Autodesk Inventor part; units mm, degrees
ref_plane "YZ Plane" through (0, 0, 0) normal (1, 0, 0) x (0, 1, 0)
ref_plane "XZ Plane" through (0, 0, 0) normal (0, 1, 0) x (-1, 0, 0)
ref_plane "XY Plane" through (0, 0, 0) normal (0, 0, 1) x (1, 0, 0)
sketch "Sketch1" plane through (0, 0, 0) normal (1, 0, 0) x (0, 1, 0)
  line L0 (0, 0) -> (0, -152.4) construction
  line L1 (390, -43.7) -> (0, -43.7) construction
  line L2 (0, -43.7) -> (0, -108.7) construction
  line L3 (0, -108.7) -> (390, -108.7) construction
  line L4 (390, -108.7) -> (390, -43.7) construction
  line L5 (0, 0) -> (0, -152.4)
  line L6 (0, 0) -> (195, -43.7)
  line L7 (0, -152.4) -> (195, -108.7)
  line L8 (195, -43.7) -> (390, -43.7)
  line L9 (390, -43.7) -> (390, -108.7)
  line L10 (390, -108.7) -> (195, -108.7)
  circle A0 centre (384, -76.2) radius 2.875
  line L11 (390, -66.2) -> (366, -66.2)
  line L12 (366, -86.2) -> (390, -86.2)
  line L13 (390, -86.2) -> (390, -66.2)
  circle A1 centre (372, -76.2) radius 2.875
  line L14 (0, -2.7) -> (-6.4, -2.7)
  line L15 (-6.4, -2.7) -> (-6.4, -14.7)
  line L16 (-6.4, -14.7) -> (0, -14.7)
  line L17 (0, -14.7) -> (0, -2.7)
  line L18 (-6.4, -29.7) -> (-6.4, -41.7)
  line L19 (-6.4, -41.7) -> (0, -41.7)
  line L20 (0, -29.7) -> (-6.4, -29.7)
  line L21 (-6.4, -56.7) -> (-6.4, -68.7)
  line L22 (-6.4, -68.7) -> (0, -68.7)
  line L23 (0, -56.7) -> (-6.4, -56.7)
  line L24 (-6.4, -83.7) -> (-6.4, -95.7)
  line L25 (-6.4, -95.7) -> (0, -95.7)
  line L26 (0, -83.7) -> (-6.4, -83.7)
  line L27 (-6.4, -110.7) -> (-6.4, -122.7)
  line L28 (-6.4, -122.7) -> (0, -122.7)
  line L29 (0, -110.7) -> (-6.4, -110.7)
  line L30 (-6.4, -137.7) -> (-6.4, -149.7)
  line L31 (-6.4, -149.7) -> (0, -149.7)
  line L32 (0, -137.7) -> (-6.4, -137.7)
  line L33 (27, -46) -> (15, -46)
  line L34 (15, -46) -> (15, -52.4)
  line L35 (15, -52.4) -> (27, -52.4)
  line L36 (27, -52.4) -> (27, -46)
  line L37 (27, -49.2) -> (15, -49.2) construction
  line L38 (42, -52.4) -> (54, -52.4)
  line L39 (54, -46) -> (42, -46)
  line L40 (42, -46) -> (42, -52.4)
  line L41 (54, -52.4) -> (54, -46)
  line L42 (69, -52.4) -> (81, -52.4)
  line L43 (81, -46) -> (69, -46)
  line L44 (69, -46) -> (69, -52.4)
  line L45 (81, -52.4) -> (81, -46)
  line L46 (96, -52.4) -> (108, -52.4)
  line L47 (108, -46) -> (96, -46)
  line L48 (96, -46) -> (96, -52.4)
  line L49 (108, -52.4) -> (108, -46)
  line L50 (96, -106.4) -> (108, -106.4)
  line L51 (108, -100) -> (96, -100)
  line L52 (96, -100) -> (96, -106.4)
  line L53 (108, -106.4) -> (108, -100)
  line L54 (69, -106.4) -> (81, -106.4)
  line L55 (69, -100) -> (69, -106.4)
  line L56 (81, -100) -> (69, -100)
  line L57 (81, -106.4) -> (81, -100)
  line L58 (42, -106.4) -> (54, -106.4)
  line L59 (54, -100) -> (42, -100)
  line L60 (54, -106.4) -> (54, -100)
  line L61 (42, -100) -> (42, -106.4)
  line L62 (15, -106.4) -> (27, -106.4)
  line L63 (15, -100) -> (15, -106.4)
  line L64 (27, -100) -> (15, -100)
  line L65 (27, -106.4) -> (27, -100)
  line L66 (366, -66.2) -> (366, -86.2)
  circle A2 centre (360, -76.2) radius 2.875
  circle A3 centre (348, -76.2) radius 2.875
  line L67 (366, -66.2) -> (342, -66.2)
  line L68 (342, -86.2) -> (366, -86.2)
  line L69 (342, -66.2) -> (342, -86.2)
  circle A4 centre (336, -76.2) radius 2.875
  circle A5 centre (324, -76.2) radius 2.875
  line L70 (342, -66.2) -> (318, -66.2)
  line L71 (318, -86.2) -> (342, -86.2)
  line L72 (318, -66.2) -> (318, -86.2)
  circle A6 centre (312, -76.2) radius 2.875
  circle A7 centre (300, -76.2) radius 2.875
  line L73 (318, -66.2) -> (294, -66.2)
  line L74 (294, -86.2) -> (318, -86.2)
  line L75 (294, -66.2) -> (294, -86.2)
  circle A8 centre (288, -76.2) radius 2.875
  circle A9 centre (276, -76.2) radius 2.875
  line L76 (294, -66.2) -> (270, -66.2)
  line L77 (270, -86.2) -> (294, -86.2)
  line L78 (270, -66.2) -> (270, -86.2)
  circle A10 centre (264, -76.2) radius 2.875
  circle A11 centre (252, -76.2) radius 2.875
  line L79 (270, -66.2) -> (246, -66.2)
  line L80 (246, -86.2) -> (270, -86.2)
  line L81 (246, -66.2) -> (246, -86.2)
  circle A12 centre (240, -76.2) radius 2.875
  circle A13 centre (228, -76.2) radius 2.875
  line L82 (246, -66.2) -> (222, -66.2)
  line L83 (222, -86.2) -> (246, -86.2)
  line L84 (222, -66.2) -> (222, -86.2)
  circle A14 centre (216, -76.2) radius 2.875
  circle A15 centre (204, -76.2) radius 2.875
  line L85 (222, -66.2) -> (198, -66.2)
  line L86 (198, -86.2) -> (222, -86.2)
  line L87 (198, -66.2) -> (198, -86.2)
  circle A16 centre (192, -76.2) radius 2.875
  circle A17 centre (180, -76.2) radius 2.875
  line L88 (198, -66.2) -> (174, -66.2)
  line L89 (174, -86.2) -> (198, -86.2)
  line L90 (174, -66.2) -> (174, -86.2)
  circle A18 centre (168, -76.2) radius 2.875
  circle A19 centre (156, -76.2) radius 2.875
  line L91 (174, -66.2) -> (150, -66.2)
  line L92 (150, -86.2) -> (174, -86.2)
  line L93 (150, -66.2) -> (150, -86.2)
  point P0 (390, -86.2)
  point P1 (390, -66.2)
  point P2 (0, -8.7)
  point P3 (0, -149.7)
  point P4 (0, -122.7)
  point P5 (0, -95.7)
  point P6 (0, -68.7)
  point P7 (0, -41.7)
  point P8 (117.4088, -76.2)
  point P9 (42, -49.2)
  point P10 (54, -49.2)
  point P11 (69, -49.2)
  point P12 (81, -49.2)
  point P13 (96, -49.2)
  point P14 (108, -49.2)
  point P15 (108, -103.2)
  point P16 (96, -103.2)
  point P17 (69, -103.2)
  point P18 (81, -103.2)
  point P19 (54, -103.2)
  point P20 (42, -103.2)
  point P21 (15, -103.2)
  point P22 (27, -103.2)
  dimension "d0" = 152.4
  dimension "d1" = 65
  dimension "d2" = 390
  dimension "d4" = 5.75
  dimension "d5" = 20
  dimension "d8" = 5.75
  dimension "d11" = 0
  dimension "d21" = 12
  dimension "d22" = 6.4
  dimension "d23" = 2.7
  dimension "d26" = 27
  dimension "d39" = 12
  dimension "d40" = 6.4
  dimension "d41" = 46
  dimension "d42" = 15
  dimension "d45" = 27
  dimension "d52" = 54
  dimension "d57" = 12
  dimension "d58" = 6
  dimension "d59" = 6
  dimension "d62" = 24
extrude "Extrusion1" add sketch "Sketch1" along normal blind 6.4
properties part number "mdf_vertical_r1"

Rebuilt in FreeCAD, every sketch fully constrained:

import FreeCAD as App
import Part
import Sketcher

doc = App.newDocument("Part")
body = doc.addObject("PartDesign::Body", "Body")

# Sketch on YZ plane
sketch1 = body.newObject("Sketcher::SketchObject", "Sketch")
sketch1.AttachmentSupport = (doc.getObject("YZ_Plane"), [""])
sketch1.MapMode = "FlatFace"
sketch1.addGeometry([
    Part.LineSegment(App.Vector(195, -43.7, 0), App.Vector(0, 0, 0)),  # 0
    Part.LineSegment(App.Vector(0, 0, 0), App.Vector(0, -2.7, 0)),  # 1
    Part.LineSegment(App.Vector(0, -2.7, 0), App.Vector(-6.4, -2.7, 0)),  # 2
    Part.LineSegment(App.Vector(-6.4, -2.7, 0), App.Vector(-6.4, -14.7, 0)),  # 3
    Part.LineSegment(App.Vector(-6.4, -14.7, 0), App.Vector(0, -14.7, 0)),  # 4
    Part.LineSegment(App.Vector(0, -14.7, 0), App.Vector(0, -29.7, 0)),  # 5
    Part.LineSegment(App.Vector(0, -29.7, 0), App.Vector(-6.4, -29.7, 0)),  # 6
    Part.LineSegment(App.Vector(-6.4, -29.7, 0), App.Vector(-6.4, -41.7, 0)),  # 7
    Part.LineSegment(App.Vector(-6.4, -41.7, 0), App.Vector(0, -41.7, 0)),  # 8
    Part.LineSegment(App.Vector(0, -41.7, 0), App.Vector(0, -56.7, 0)),  # 9
    Part.LineSegment(App.Vector(0, -56.7, 0), App.Vector(-6.4, -56.7, 0)),  # 10
    Part.LineSegment(App.Vector(-6.4, -56.7, 0), App.Vector(-6.4, -68.7, 0)),  # 11
    Part.LineSegment(App.Vector(-6.4, -68.7, 0), App.Vector(0, -68.7, 0)),  # 12
    Part.LineSegment(App.Vector(0, -68.7, 0), App.Vector(0, -83.7, 0)),  # 13
    Part.LineSegment(App.Vector(0, -83.7, 0), App.Vector(-6.4, -83.7, 0)),  # 14
    Part.LineSegment(App.Vector(-6.4, -83.7, 0), App.Vector(-6.4, -95.7, 0)),  # 15
    Part.LineSegment(App.Vector(-6.4, -95.7, 0), App.Vector(0, -95.7, 0)),  # 16
    Part.LineSegment(App.Vector(0, -95.7, 0), App.Vector(0, -110.7, 0)),  # 17
    Part.LineSegment(App.Vector(0, -110.7, 0), App.Vector(-6.4, -110.7, 0)),  # 18
    Part.LineSegment(App.Vector(-6.4, -110.7, 0), App.Vector(-6.4, -122.7, 0)),  # 19
    Part.LineSegment(App.Vector(-6.4, -122.7, 0), App.Vector(0, -122.7, 0)),  # 20
    Part.LineSegment(App.Vector(0, -122.7, 0), App.Vector(0, -137.7, 0)),  # 21
    Part.LineSegment(App.Vector(0, -137.7, 0), App.Vector(-6.4, -137.7, 0)),  # 22
    Part.LineSegment(App.Vector(-6.4, -137.7, 0), App.Vector(-6.4, -149.7, 0)),  # 23
    Part.LineSegment(App.Vector(-6.4, -149.7, 0), App.Vector(0, -149.7, 0)),  # 24
    Part.LineSegment(App.Vector(0, -149.7, 0), App.Vector(0, -152.4, 0)),  # 25
    Part.LineSegment(App.Vector(0, -152.4, 0), App.Vector(195, -108.7, 0)),  # 26
    Part.LineSegment(App.Vector(195, -108.7, 0), App.Vector(390, -108.7, 0)),  # 27
    Part.LineSegment(App.Vector(390, -108.7, 0), App.Vector(390, -43.7, 0)),  # 28
    Part.LineSegment(App.Vector(390, -43.7, 0), App.Vector(195, -43.7, 0)),  # 29
    Part.LineSegment(App.Vector(27, -106.4, 0), App.Vector(15, -106.4, 0)),  # 30
    Part.LineSegment(App.Vector(15, -106.4, 0), App.Vector(15, -100, 0)),  # 31
    Part.LineSegment(App.Vector(15, -100, 0), App.Vector(27, -100, 0)),  # 32
    Part.LineSegment(App.Vector(27, -100, 0), App.Vector(27, -106.4, 0)),  # 33
    Part.LineSegment(App.Vector(54, -106.4, 0), App.Vector(42, -106.4, 0)),  # 34
    Part.LineSegment(App.Vector(42, -106.4, 0), App.Vector(42, -100, 0)),  # 35
    Part.LineSegment(App.Vector(42, -100, 0), App.Vector(54, -100, 0)),  # 36
    Part.LineSegment(App.Vector(54, -100, 0), App.Vector(54, -106.4, 0)),  # 37
    Part.LineSegment(App.Vector(81, -106.4, 0), App.Vector(69, -106.4, 0)),  # 38
    Part.LineSegment(App.Vector(69, -106.4, 0), App.Vector(69, -100, 0)),  # 39
    Part.LineSegment(App.Vector(69, -100, 0), App.Vector(81, -100, 0)),  # 40
    Part.LineSegment(App.Vector(81, -100, 0), App.Vector(81, -106.4, 0)),  # 41
    Part.LineSegment(App.Vector(108, -106.4, 0), App.Vector(96, -106.4, 0)),  # 42
    Part.LineSegment(App.Vector(96, -106.4, 0), App.Vector(96, -100, 0)),  # 43
    Part.LineSegment(App.Vector(96, -100, 0), App.Vector(108, -100, 0)),  # 44
    Part.LineSegment(App.Vector(108, -100, 0), App.Vector(108, -106.4, 0)),  # 45
    Part.LineSegment(App.Vector(15, -46, 0), App.Vector(27, -46, 0)),  # 46
    Part.LineSegment(App.Vector(27, -46, 0), App.Vector(27, -52.4, 0)),  # 47
    Part.LineSegment(App.Vector(27, -52.4, 0), App.Vector(15, -52.4, 0)),  # 48
    Part.LineSegment(App.Vector(15, -52.4, 0), App.Vector(15, -46, 0)),  # 49
    Part.LineSegment(App.Vector(54, -52.4, 0), App.Vector(42, -52.4, 0)),  # 50
    Part.LineSegment(App.Vector(42, -52.4, 0), App.Vector(42, -46, 0)),  # 51
    Part.LineSegment(App.Vector(42, -46, 0), App.Vector(54, -46, 0)),  # 52
    Part.LineSegment(App.Vector(54, -46, 0), App.Vector(54, -52.4, 0)),  # 53
    Part.LineSegment(App.Vector(81, -52.4, 0), App.Vector(69, -52.4, 0)),  # 54
    Part.LineSegment(App.Vector(69, -52.4, 0), App.Vector(69, -46, 0)),  # 55
    Part.LineSegment(App.Vector(69, -46, 0), App.Vector(81, -46, 0)),  # 56
    Part.LineSegment(App.Vector(81, -46, 0), App.Vector(81, -52.4, 0)),  # 57
    Part.LineSegment(App.Vector(108, -52.4, 0), App.Vector(96, -52.4, 0)),  # 58
    Part.LineSegment(App.Vector(96, -52.4, 0), App.Vector(96, -46, 0)),  # 59
    Part.LineSegment(App.Vector(96, -46, 0), App.Vector(108, -46, 0)),  # 60
    Part.LineSegment(App.Vector(108, -46, 0), App.Vector(108, -52.4, 0)),  # 61
    Part.Circle(App.Vector(372, -76.2, 0), App.Vector(0, 0, 1), 2.9),  # 62
    Part.Circle(App.Vector(384, -76.2, 0), App.Vector(0, 0, 1), 2.9),  # 63
    Part.Circle(App.Vector(360, -76.2, 0), App.Vector(0, 0, 1), 2.9),  # 64
    Part.Circle(App.Vector(348, -76.2, 0), App.Vector(0, 0, 1), 2.9),  # 65
    Part.Circle(App.Vector(336, -76.2, 0), App.Vector(0, 0, 1), 2.9),  # 66
    Part.Circle(App.Vector(324, -76.2, 0), App.Vector(0, 0, 1), 2.9),  # 67
    Part.Circle(App.Vector(312, -76.2, 0), App.Vector(0, 0, 1), 2.9),  # 68
    Part.Circle(App.Vector(300, -76.2, 0), App.Vector(0, 0, 1), 2.9),  # 69
    Part.Circle(App.Vector(288, -76.2, 0), App.Vector(0, 0, 1), 2.9),  # 70
    Part.Circle(App.Vector(276, -76.2, 0), App.Vector(0, 0, 1), 2.9),  # 71
    Part.Circle(App.Vector(264, -76.2, 0), App.Vector(0, 0, 1), 2.9),  # 72
    Part.Circle(App.Vector(252, -76.2, 0), App.Vector(0, 0, 1), 2.9),  # 73
    Part.Circle(App.Vector(240, -76.2, 0), App.Vector(0, 0, 1), 2.9),  # 74
    Part.Circle(App.Vector(228, -76.2, 0), App.Vector(0, 0, 1), 2.9),  # 75
    Part.Circle(App.Vector(216, -76.2, 0), App.Vector(0, 0, 1), 2.9),  # 76
    Part.Circle(App.Vector(204, -76.2, 0), App.Vector(0, 0, 1), 2.9),  # 77
    Part.Circle(App.Vector(192, -76.2, 0), App.Vector(0, 0, 1), 2.9),  # 78
    Part.Circle(App.Vector(180, -76.2, 0), App.Vector(0, 0, 1), 2.9),  # 79
    Part.Circle(App.Vector(156, -76.2, 0), App.Vector(0, 0, 1), 2.9),  # 80
    Part.Circle(App.Vector(168, -76.2, 0), App.Vector(0, 0, 1), 2.9),  # 81
], False)
sketch1.addConstraint([
    Sketcher.Constraint("Coincident", 0, 2, 1, 1),
    Sketcher.Constraint("Coincident", 1, 2, 2, 1),
    Sketcher.Constraint("Coincident", 2, 2, 3, 1),
    Sketcher.Constraint("Coincident", 3, 2, 4, 1),
    Sketcher.Constraint("Coincident", 4, 2, 5, 1),
    Sketcher.Constraint("Coincident", 5, 2, 6, 1),
    Sketcher.Constraint("Coincident", 6, 2, 7, 1),
    Sketcher.Constraint("Coincident", 7, 2, 8, 1),
    Sketcher.Constraint("Coincident", 8, 2, 9, 1),
    Sketcher.Constraint("Coincident", 9, 2, 10, 1),
    Sketcher.Constraint("Coincident", 10, 2, 11, 1),
    Sketcher.Constraint("Coincident", 11, 2, 12, 1),
    Sketcher.Constraint("Coincident", 12, 2, 13, 1),
    Sketcher.Constraint("Coincident", 13, 2, 14, 1),
    Sketcher.Constraint("Coincident", 14, 2, 15, 1),
    Sketcher.Constraint("Coincident", 15, 2, 16, 1),
    Sketcher.Constraint("Coincident", 16, 2, 17, 1),
    Sketcher.Constraint("Coincident", 17, 2, 18, 1),
    Sketcher.Constraint("Coincident", 18, 2, 19, 1),
    Sketcher.Constraint("Coincident", 19, 2, 20, 1),
    Sketcher.Constraint("Coincident", 20, 2, 21, 1),
    Sketcher.Constraint("Coincident", 21, 2, 22, 1),
    Sketcher.Constraint("Coincident", 22, 2, 23, 1),
    Sketcher.Constraint("Coincident", 23, 2, 24, 1),
    Sketcher.Constraint("Coincident", 24, 2, 25, 1),
    Sketcher.Constraint("Coincident", 25, 2, 26, 1),
    Sketcher.Constraint("Coincident", 26, 2, 27, 1),
    Sketcher.Constraint("Coincident", 27, 2, 28, 1),
    Sketcher.Constraint("Coincident", 28, 2, 29, 1),
    Sketcher.Constraint("Coincident", 29, 2, 0, 1),
    Sketcher.Constraint("Coincident", 30, 2, 31, 1),
    Sketcher.Constraint("Coincident", 31, 2, 32, 1),
    Sketcher.Constraint("Coincident", 32, 2, 33, 1),
    Sketcher.Constraint("Coincident", 33, 2, 30, 1),
    Sketcher.Constraint("Coincident", 34, 2, 35, 1),
    Sketcher.Constraint("Coincident", 35, 2, 36, 1),
    Sketcher.Constraint("Coincident", 36, 2, 37, 1),
    Sketcher.Constraint("Coincident", 37, 2, 34, 1),
    Sketcher.Constraint("Coincident", 38, 2, 39, 1),
    Sketcher.Constraint("Coincident", 39, 2, 40, 1),
    Sketcher.Constraint("Coincident", 40, 2, 41, 1),
    Sketcher.Constraint("Coincident", 41, 2, 38, 1),
    Sketcher.Constraint("Coincident", 42, 2, 43, 1),
    Sketcher.Constraint("Coincident", 43, 2, 44, 1),
    Sketcher.Constraint("Coincident", 44, 2, 45, 1),
    Sketcher.Constraint("Coincident", 45, 2, 42, 1),
    Sketcher.Constraint("Coincident", 46, 2, 47, 1),
    Sketcher.Constraint("Coincident", 47, 2, 48, 1),
    Sketcher.Constraint("Coincident", 48, 2, 49, 1),
    Sketcher.Constraint("Coincident", 49, 2, 46, 1),
    Sketcher.Constraint("Coincident", 50, 2, 51, 1),
    Sketcher.Constraint("Coincident", 51, 2, 52, 1),
    Sketcher.Constraint("Coincident", 52, 2, 53, 1),
    Sketcher.Constraint("Coincident", 53, 2, 50, 1),
    Sketcher.Constraint("Coincident", 54, 2, 55, 1),
    Sketcher.Constraint("Coincident", 55, 2, 56, 1),
    Sketcher.Constraint("Coincident", 56, 2, 57, 1),
    Sketcher.Constraint("Coincident", 57, 2, 54, 1),
    Sketcher.Constraint("Coincident", 58, 2, 59, 1),
    Sketcher.Constraint("Coincident", 59, 2, 60, 1),
    Sketcher.Constraint("Coincident", 60, 2, 61, 1),
    Sketcher.Constraint("Coincident", 61, 2, 58, 1),
    Sketcher.Constraint("Vertical", 1),
    Sketcher.Constraint("Horizontal", 2),
    Sketcher.Constraint("Vertical", 3),
    Sketcher.Constraint("Horizontal", 4),
    Sketcher.Constraint("Vertical", 5),
    Sketcher.Constraint("Horizontal", 6),
    Sketcher.Constraint("Vertical", 7),
    Sketcher.Constraint("Horizontal", 8),
    Sketcher.Constraint("Vertical", 9),
    Sketcher.Constraint("Horizontal", 10),
    Sketcher.Constraint("Vertical", 11),
    Sketcher.Constraint("Horizontal", 12),
    Sketcher.Constraint("Vertical", 13),
    Sketcher.Constraint("Horizontal", 14),
    Sketcher.Constraint("Vertical", 15),
    Sketcher.Constraint("Horizontal", 16),
    Sketcher.Constraint("Vertical", 17),
    Sketcher.Constraint("Horizontal", 18),
    Sketcher.Constraint("Vertical", 19),
    Sketcher.Constraint("Horizontal", 20),
    Sketcher.Constraint("Vertical", 21),
    Sketcher.Constraint("Horizontal", 22),
    Sketcher.Constraint("Vertical", 23),
    Sketcher.Constraint("Horizontal", 24),
    Sketcher.Constraint("Vertical", 25),
    Sketcher.Constraint("Horizontal", 27),
    Sketcher.Constraint("Vertical", 28),
    Sketcher.Constraint("Horizontal", 29),
    Sketcher.Constraint("Horizontal", 30),
    Sketcher.Constraint("Vertical", 31),
    Sketcher.Constraint("Horizontal", 32),
    Sketcher.Constraint("Vertical", 33),
    Sketcher.Constraint("Horizontal", 34),
    Sketcher.Constraint("Vertical", 35),
    Sketcher.Constraint("Horizontal", 36),
    Sketcher.Constraint("Vertical", 37),
    Sketcher.Constraint("Horizontal", 38),
    Sketcher.Constraint("Vertical", 39),
    Sketcher.Constraint("Horizontal", 40),
    Sketcher.Constraint("Vertical", 41),
    Sketcher.Constraint("Horizontal", 42),
    Sketcher.Constraint("Vertical", 43),
    Sketcher.Constraint("Horizontal", 44),
    Sketcher.Constraint("Vertical", 45),
    Sketcher.Constraint("Horizontal", 46),
    Sketcher.Constraint("Vertical", 47),
    Sketcher.Constraint("Horizontal", 48),
    Sketcher.Constraint("Vertical", 49),
    Sketcher.Constraint("Horizontal", 50),
    Sketcher.Constraint("Vertical", 51),
    Sketcher.Constraint("Horizontal", 52),
    Sketcher.Constraint("Vertical", 53),
    Sketcher.Constraint("Horizontal", 54),
    Sketcher.Constraint("Vertical", 55),
    Sketcher.Constraint("Horizontal", 56),
    Sketcher.Constraint("Vertical", 57),
    Sketcher.Constraint("Horizontal", 58),
    Sketcher.Constraint("Vertical", 59),
    Sketcher.Constraint("Horizontal", 60),
    Sketcher.Constraint("Vertical", 61),
    Sketcher.Constraint("Coincident", 0, 2, -1, 1),
    Sketcher.Constraint("Equal", 62, 63),
    Sketcher.Constraint("Equal", 63, 64),
    Sketcher.Constraint("Equal", 64, 65),
    Sketcher.Constraint("Equal", 65, 66),
    Sketcher.Constraint("Equal", 66, 67),
    Sketcher.Constraint("Equal", 67, 68),
    Sketcher.Constraint("Equal", 68, 69),
    Sketcher.Constraint("Equal", 69, 70),
    Sketcher.Constraint("Equal", 70, 71),
    Sketcher.Constraint("Equal", 71, 72),
    Sketcher.Constraint("Equal", 72, 73),
    Sketcher.Constraint("Equal", 73, 74),
    Sketcher.Constraint("Equal", 74, 75),
    Sketcher.Constraint("Equal", 75, 76),
    Sketcher.Constraint("Equal", 76, 77),
    Sketcher.Constraint("Equal", 77, 78),
    Sketcher.Constraint("Equal", 78, 79),
    Sketcher.Constraint("Equal", 79, 80),
    Sketcher.Constraint("Equal", 80, 81),
    Sketcher.Constraint("PointOnObject", 4, 2, -2),
    Sketcher.Constraint("PointOnObject", 8, 2, -2),
    Sketcher.Constraint("PointOnObject", 12, 2, -2),
    Sketcher.Constraint("PointOnObject", 16, 2, -2),
    Sketcher.Constraint("PointOnObject", 20, 2, -2),
    Sketcher.Constraint("PointOnObject", 24, 2, -2),
    Sketcher.Constraint("Horizontal", 62, 3, 63, 3),
    Sketcher.Constraint("Horizontal", 63, 3, 64, 3),
    Sketcher.Constraint("Horizontal", 64, 3, 65, 3),
    Sketcher.Constraint("Horizontal", 65, 3, 66, 3),
    Sketcher.Constraint("Horizontal", 66, 3, 67, 3),
    Sketcher.Constraint("Horizontal", 67, 3, 68, 3),
    Sketcher.Constraint("Horizontal", 68, 3, 69, 3),
    Sketcher.Constraint("Horizontal", 69, 3, 70, 3),
    Sketcher.Constraint("Horizontal", 70, 3, 71, 3),
    Sketcher.Constraint("Horizontal", 71, 3, 72, 3),
    Sketcher.Constraint("Horizontal", 72, 3, 73, 3),
    Sketcher.Constraint("Horizontal", 73, 3, 74, 3),
    Sketcher.Constraint("Horizontal", 74, 3, 75, 3),
    Sketcher.Constraint("Horizontal", 75, 3, 76, 3),
    Sketcher.Constraint("Horizontal", 76, 3, 77, 3),
    Sketcher.Constraint("Horizontal", 77, 3, 78, 3),
    Sketcher.Constraint("Horizontal", 78, 3, 79, 3),
    Sketcher.Constraint("Horizontal", 79, 3, 80, 3),
    Sketcher.Constraint("Horizontal", 80, 3, 81, 3),
    Sketcher.Constraint("Horizontal", 33, 2, 34, 2),
    Sketcher.Constraint("Horizontal", 32, 2, 35, 2),
    Sketcher.Constraint("Horizontal", 37, 2, 38, 2),
    Sketcher.Constraint("Horizontal", 36, 2, 39, 2),
    Sketcher.Constraint("Horizontal", 41, 2, 42, 2),
    Sketcher.Constraint("Horizontal", 40, 2, 43, 2),
    Sketcher.Constraint("Horizontal", 48, 2, 50, 2),
    Sketcher.Constraint("Horizontal", 49, 2, 51, 2),
    Sketcher.Constraint("Horizontal", 53, 2, 54, 2),
    Sketcher.Constraint("Horizontal", 52, 2, 55, 2),
    Sketcher.Constraint("Horizontal", 57, 2, 58, 2),
    Sketcher.Constraint("Horizontal", 56, 2, 59, 2),
    Sketcher.Constraint("Vertical", 3, 2, 6, 2),
    Sketcher.Constraint("Vertical", 7, 2, 10, 2),
    Sketcher.Constraint("Vertical", 11, 2, 14, 2),
    Sketcher.Constraint("Vertical", 15, 2, 18, 2),
    Sketcher.Constraint("Vertical", 19, 2, 22, 2),
    Sketcher.Constraint("Vertical", 26, 2, 29, 2),
    Sketcher.Constraint("Vertical", 33, 2, 46, 2),
    Sketcher.Constraint("Vertical", 31, 2, 48, 2),
    Sketcher.Constraint("Vertical", 35, 2, 50, 2),
    Sketcher.Constraint("Vertical", 37, 2, 52, 2),
    Sketcher.Constraint("Vertical", 39, 2, 54, 2),
    Sketcher.Constraint("Vertical", 41, 2, 56, 2),
    Sketcher.Constraint("Vertical", 43, 2, 58, 2),
    Sketcher.Constraint("Vertical", 45, 2, 60, 2),
    Sketcher.Constraint("Equal", 32, 34),
    Sketcher.Constraint("Equal", 36, 38),
    Sketcher.Constraint("Equal", 40, 42),
    Sketcher.Constraint("Equal", 60, 3),
    Sketcher.Constraint("Equal", 3, 7),
    Sketcher.Constraint("Equal", 5, 9),
    Sketcher.Constraint("Equal", 7, 11),
    Sketcher.Constraint("Equal", 9, 13),
    Sketcher.Constraint("Equal", 11, 15),
    Sketcher.Constraint("Equal", 13, 17),
    Sketcher.Constraint("Equal", 15, 19),
    Sketcher.Constraint("Equal", 17, 21),
    Sketcher.Constraint("Equal", 19, 23),
    Sketcher.Constraint("Equal", 1, 25),
    Sketcher.Constraint("Equal", 24, 31),
    Sketcher.Constraint("Equal", 45, 47),
    Sketcher.Constraint("Equal", 0, 26),
    Sketcher.Constraint("Diameter", 62, 5.75),
    Sketcher.Constraint("DistanceX", 30, 2, 30, 1, 12.0),
    Sketcher.Constraint("DistanceY", 5, 2, 5, 1, 15.0),
    Sketcher.Constraint("DistanceY", 28, 1, 28, 2, 65.0),
    Sketcher.Constraint("DistanceX", 2, 2, 2, 1, 6.4),
    Sketcher.Constraint("DistanceY", 1, 2, 1, 1, 2.7),
    Sketcher.Constraint("DistanceX", -1, 1, 27, 2, 390.0),
    Sketcher.Constraint("DistanceX", -1, 1, 30, 2, 15.0),
    Sketcher.Constraint("DistanceX", -1, 1, 36, 2, 54.0),
    Sketcher.Constraint("DistanceY", 46, 2, -1, 1, 46.0),
    Sketcher.Constraint("DistanceX", 27, 1, 27, 2, 195.0),
    Sketcher.Constraint("DistanceX", -1, 1, 62, 3, 372.0),
    Sketcher.Constraint("DistanceX", -1, 1, 63, 3, 384.0),
    Sketcher.Constraint("DistanceX", -1, 1, 64, 3, 360.0),
    Sketcher.Constraint("DistanceX", -1, 1, 65, 3, 348.0),
    Sketcher.Constraint("DistanceX", -1, 1, 66, 3, 336.0),
    Sketcher.Constraint("DistanceX", -1, 1, 67, 3, 324.0),
    Sketcher.Constraint("DistanceX", -1, 1, 68, 3, 312.0),
    Sketcher.Constraint("DistanceX", -1, 1, 69, 3, 300.0),
    Sketcher.Constraint("DistanceX", -1, 1, 70, 3, 288.0),
    Sketcher.Constraint("DistanceX", -1, 1, 71, 3, 276.0),
    Sketcher.Constraint("DistanceX", -1, 1, 72, 3, 264.0),
    Sketcher.Constraint("DistanceX", -1, 1, 73, 3, 252.0),
    Sketcher.Constraint("DistanceX", -1, 1, 74, 3, 240.0),
    Sketcher.Constraint("DistanceX", -1, 1, 75, 3, 228.0),
    Sketcher.Constraint("DistanceX", -1, 1, 76, 3, 216.0),
    Sketcher.Constraint("DistanceX", -1, 1, 77, 3, 204.0),
    Sketcher.Constraint("DistanceX", -1, 1, 78, 3, 192.0),
    Sketcher.Constraint("DistanceX", -1, 1, 79, 3, 180.0),
    Sketcher.Constraint("DistanceX", -1, 1, 80, 3, 156.0),
    Sketcher.Constraint("DistanceX", -1, 1, 81, 3, 168.0),
    Sketcher.Constraint("DistanceY", 31, 2, -1, 1, 100.0),
    Sketcher.Constraint("DistanceX", -1, 1, 38, 2, 69.0),
    Sketcher.Constraint("DistanceX", -1, 1, 42, 2, 96.0),
    Sketcher.Constraint("DistanceY", 62, 3, -1, 1, 76.2),
])
pad1 = body.newObject("PartDesign::Pad", "Pad")
pad1.Profile = sketch1
pad1.Length = 6.4

doc.recompute()
